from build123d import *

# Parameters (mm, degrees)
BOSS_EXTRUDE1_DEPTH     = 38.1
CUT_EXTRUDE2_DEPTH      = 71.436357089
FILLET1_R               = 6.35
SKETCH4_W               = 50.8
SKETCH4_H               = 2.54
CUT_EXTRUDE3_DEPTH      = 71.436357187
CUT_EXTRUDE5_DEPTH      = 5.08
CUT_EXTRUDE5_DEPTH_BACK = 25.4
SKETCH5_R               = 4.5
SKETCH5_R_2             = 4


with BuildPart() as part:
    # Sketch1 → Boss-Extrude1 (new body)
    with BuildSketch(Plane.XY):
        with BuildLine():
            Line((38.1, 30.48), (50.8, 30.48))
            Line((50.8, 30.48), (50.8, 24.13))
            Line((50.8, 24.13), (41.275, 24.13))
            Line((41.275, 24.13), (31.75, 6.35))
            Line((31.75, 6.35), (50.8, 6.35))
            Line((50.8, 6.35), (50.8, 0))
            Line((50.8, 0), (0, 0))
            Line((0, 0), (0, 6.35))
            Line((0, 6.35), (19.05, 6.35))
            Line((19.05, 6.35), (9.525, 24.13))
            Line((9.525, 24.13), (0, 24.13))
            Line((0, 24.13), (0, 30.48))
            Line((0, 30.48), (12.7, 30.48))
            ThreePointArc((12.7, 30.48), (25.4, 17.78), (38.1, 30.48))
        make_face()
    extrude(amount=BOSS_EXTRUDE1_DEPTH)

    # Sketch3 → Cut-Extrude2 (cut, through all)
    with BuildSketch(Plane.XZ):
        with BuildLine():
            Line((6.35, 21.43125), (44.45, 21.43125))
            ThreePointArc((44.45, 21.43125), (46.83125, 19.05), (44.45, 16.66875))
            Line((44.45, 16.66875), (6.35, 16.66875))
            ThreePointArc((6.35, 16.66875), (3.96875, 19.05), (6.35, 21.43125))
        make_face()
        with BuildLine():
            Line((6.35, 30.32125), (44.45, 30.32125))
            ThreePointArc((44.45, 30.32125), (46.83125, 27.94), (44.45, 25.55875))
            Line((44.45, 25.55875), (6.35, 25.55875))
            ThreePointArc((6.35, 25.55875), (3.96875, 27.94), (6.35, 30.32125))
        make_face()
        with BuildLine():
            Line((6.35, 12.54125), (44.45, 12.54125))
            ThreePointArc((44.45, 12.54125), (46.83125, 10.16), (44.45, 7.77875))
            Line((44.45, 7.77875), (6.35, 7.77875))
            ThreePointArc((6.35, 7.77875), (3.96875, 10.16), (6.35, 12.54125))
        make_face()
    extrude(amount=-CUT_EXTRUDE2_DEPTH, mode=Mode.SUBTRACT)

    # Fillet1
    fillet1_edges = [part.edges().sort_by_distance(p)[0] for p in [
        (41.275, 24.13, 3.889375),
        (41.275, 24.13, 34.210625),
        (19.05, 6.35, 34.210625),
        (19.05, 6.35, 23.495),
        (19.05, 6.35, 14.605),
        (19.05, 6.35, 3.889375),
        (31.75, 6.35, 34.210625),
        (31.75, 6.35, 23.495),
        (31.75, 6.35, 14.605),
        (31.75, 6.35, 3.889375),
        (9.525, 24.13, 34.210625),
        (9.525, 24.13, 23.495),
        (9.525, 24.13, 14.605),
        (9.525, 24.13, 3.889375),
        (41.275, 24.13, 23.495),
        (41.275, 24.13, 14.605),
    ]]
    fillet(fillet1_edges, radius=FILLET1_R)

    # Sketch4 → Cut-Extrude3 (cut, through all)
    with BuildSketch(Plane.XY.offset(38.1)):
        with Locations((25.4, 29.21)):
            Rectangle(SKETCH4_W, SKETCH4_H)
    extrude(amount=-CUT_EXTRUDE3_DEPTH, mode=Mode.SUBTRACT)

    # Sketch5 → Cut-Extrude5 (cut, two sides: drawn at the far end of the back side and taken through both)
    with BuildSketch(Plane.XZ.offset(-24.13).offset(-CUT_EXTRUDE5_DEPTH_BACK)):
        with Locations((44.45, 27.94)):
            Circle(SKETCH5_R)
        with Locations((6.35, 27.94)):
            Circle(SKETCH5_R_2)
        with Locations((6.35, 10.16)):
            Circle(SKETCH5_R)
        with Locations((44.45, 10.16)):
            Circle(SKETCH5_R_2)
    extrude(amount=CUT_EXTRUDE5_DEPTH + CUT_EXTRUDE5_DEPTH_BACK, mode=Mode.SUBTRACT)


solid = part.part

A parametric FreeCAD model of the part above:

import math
import FreeCAD as App
import Part
import Sketcher
Q = App.Units.Quantity


def edges_at(feature, points):
    """Names of the edges that pass closest to the given points."""
    edges = feature.Shape.Edges
    near = lambda p: min(range(len(edges)), key=lambda i: edges[i].distToShape(Part.Vertex(*p))[0])
    return sorted({f"Edge{near(p) + 1}" for p in points})

doc = App.newDocument("Part")
body = doc.addObject("PartDesign::Body", "Body")

sketch1 = doc.addObject("Sketcher::SketchObject", "Sketch")
body.addObject(sketch1)
sketch1.AttachmentSupport = (doc.XY_Plane, [""])
sketch1.MapMode = "FlatFace"
sketch1.addGeometry(Part.LineSegment(App.Vector(51, 30, 0), App.Vector(38, 30, 0)), False)
sketch1.addGeometry(Part.ArcOfCircle(Part.Circle(App.Vector(25, 30, 0), App.Vector(0, 0, 1), 13), math.radians(180), math.radians(360)), False)
sketch1.addGeometry(Part.LineSegment(App.Vector(13, 30, 0), App.Vector(0, 30, 0)), False)
sketch1.addGeometry(Part.LineSegment(App.Vector(0, 30, 0), App.Vector(0, 24, 0)), False)
sketch1.addGeometry(Part.LineSegment(App.Vector(0, 24, 0), App.Vector(10, 24, 0)), False)
sketch1.addGeometry(Part.LineSegment(App.Vector(10, 24, 0), App.Vector(19, 6, 0)), False)
sketch1.addGeometry(Part.LineSegment(App.Vector(19, 6, 0), App.Vector(0, 6, 0)), False)
sketch1.addGeometry(Part.LineSegment(App.Vector(0, 6, 0), App.Vector(0, 0, 0)), False)
sketch1.addGeometry(Part.LineSegment(App.Vector(0, 0, 0), App.Vector(51, 0, 0)), False)
sketch1.addGeometry(Part.LineSegment(App.Vector(51, 0, 0), App.Vector(51, 6, 0)), False)
sketch1.addGeometry(Part.LineSegment(App.Vector(51, 6, 0), App.Vector(32, 6, 0)), False)
sketch1.addGeometry(Part.LineSegment(App.Vector(32, 6, 0), App.Vector(41, 24, 0)), False)
sketch1.addGeometry(Part.LineSegment(App.Vector(41, 24, 0), App.Vector(51, 24, 0)), False)
sketch1.addGeometry(Part.LineSegment(App.Vector(51, 24, 0), App.Vector(51, 30, 0)), False)
sketch1.addConstraint(Sketcher.Constraint("Coincident", 0, 2, 1, 2))
sketch1.addConstraint(Sketcher.Constraint("Coincident", 1, 1, 2, 1))
sketch1.addConstraint(Sketcher.Constraint("Coincident", 2, 2, 3, 1))
sketch1.addConstraint(Sketcher.Constraint("Coincident", 3, 2, 4, 1))
sketch1.addConstraint(Sketcher.Constraint("Coincident", 4, 2, 5, 1))
sketch1.addConstraint(Sketcher.Constraint("Coincident", 5, 2, 6, 1))
sketch1.addConstraint(Sketcher.Constraint("Coincident", 6, 2, 7, 1))
sketch1.addConstraint(Sketcher.Constraint("Coincident", 7, 2, 8, 1))
sketch1.addConstraint(Sketcher.Constraint("Coincident", 8, 2, 9, 1))
sketch1.addConstraint(Sketcher.Constraint("Coincident", 9, 2, 10, 1))
sketch1.addConstraint(Sketcher.Constraint("Coincident", 10, 2, 11, 1))
sketch1.addConstraint(Sketcher.Constraint("Coincident", 11, 2, 12, 1))
sketch1.addConstraint(Sketcher.Constraint("Coincident", 12, 2, 13, 1))
sketch1.addConstraint(Sketcher.Constraint("Coincident", 13, 2, 0, 1))
sketch1.addConstraint(Sketcher.Constraint("Horizontal", 0))
sketch1.addConstraint(Sketcher.Constraint("Horizontal", 2))
sketch1.addConstraint(Sketcher.Constraint("Vertical", 3))
sketch1.addConstraint(Sketcher.Constraint("Horizontal", 4))
sketch1.addConstraint(Sketcher.Constraint("Horizontal", 6))
sketch1.addConstraint(Sketcher.Constraint("Vertical", 7))
sketch1.addConstraint(Sketcher.Constraint("Horizontal", 8))
sketch1.addConstraint(Sketcher.Constraint("Vertical", 9))
sketch1.addConstraint(Sketcher.Constraint("Horizontal", 10))
sketch1.addConstraint(Sketcher.Constraint("Horizontal", 12))
sketch1.addConstraint(Sketcher.Constraint("Vertical", 13))
sketch1.addConstraint(Sketcher.Constraint("Coincident", 7, 2, -1, 1))
sketch1.addConstraint(Sketcher.Constraint("PointOnObject", 2, 2, -2))
sketch1.addConstraint(Sketcher.Constraint("Horizontal", 1, 3, 0, 2))
sketch1.addConstraint(Sketcher.Constraint("Horizontal", 0, 2, 1, 1))
sketch1.addConstraint(Sketcher.Constraint("Horizontal", 6, 2, 9, 2))
sketch1.addConstraint(Sketcher.Constraint("Horizontal", 4, 2, 11, 2))
sketch1.addConstraint(Sketcher.Constraint("Vertical", 9, 2, 12, 2))
sketch1.addConstraint(Sketcher.Constraint("Equal", 0, 2))
sketch1.addConstraint(Sketcher.Constraint("Equal", 6, 10))
sketch1.addConstraint(Sketcher.Constraint("Equal", 4, 12))
sketch1.addConstraint(Sketcher.Constraint("Equal", 3, 7))
sketch1.addConstraint(Sketcher.Constraint("Radius", 1, Q("0.5 in")))
sketch1.addConstraint(Sketcher.Constraint("DistanceX", 8, 1, 8, 2, Q("2 in")))
sketch1.addConstraint(Sketcher.Constraint("DistanceX", 6, 2, 6, 1, Q("0.75 in")))
sketch1.addConstraint(Sketcher.Constraint("DistanceY", 3, 2, 3, 1, Q("0.25 in")))
sketch1.addConstraint(Sketcher.Constraint("DistanceY", -1, 1, 1, 3, Q("1.2 in")))
sketch1.addConstraint(Sketcher.Constraint("DistanceX", 4, 1, 4, 2, Q("0.375 in")))
pad1 = doc.addObject("PartDesign::Pad", "Pad")
body.addObject(pad1)
pad1.Profile = sketch1
pad1.Length = Q("1.5 in")

sketch2 = doc.addObject("Sketcher::SketchObject", "Sketch001")
body.addObject(sketch2)
sketch2.AttachmentSupport = (doc.XZ_Plane, [""])
sketch2.MapMode = "FlatFace"
sketch2.addGeometry(Part.LineSegment(App.Vector(44.5, 21.4, 0), App.Vector(6.3, 21.4, 0)), False)
sketch2.addGeometry(Part.ArcOfCircle(Part.Circle(App.Vector(6.3, 19.1, 0), App.Vector(0, 0, 1), 2.4), math.radians(90), math.radians(270)), False)
sketch2.addGeometry(Part.LineSegment(App.Vector(6.3, 16.7, 0), App.Vector(44.5, 16.7, 0)), False)
sketch2.addGeometry(Part.ArcOfCircle(Part.Circle(App.Vector(44.5, 19.1, 0), App.Vector(0, 0, 1), 2.4), math.radians(-90), math.radians(90)), False)
sketch2.addGeometry(Part.LineSegment(App.Vector(44.5, 30.3, 0), App.Vector(6.3, 30.3, 0)), False)
sketch2.addGeometry(Part.ArcOfCircle(Part.Circle(App.Vector(6.3, 27.9, 0), App.Vector(0, 0, 1), 2.4), math.radians(90), math.radians(270)), False)
sketch2.addGeometry(Part.LineSegment(App.Vector(6.3, 25.6, 0), App.Vector(44.5, 25.6, 0)), False)
sketch2.addGeometry(Part.ArcOfCircle(Part.Circle(App.Vector(44.5, 27.9, 0), App.Vector(0, 0, 1), 2.4), math.radians(-90), math.radians(90)), False)
sketch2.addGeometry(Part.LineSegment(App.Vector(44.5, 12.5, 0), App.Vector(6.3, 12.5, 0)), False)
sketch2.addGeometry(Part.ArcOfCircle(Part.Circle(App.Vector(6.3, 10.2, 0), App.Vector(0, 0, 1), 2.4), math.radians(90), math.radians(270)), False)
sketch2.addGeometry(Part.LineSegment(App.Vector(6.3, 7.8, 0), App.Vector(44.5, 7.8, 0)), False)
sketch2.addGeometry(Part.ArcOfCircle(Part.Circle(App.Vector(44.5, 10.2, 0), App.Vector(0, 0, 1), 2.4), math.radians(-90), math.radians(90)), False)
sketch2.addConstraint(Sketcher.Constraint("Tangent", 0, 2, 1, 1))
sketch2.addConstraint(Sketcher.Constraint("Tangent", 1, 2, 2, 1))
sketch2.addConstraint(Sketcher.Constraint("Tangent", 2, 2, 3, 1))
sketch2.addConstraint(Sketcher.Constraint("Tangent", 3, 2, 0, 1))
sketch2.addConstraint(Sketcher.Constraint("Tangent", 4, 2, 5, 1))
sketch2.addConstraint(Sketcher.Constraint("Tangent", 5, 2, 6, 1))
sketch2.addConstraint(Sketcher.Constraint("Tangent", 6, 2, 7, 1))
sketch2.addConstraint(Sketcher.Constraint("Tangent", 7, 2, 4, 1))
sketch2.addConstraint(Sketcher.Constraint("Tangent", 8, 2, 9, 1))
sketch2.addConstraint(Sketcher.Constraint("Tangent", 9, 2, 10, 1))
sketch2.addConstraint(Sketcher.Constraint("Tangent", 10, 2, 11, 1))
sketch2.addConstraint(Sketcher.Constraint("Tangent", 11, 2, 8, 1))
sketch2.addConstraint(Sketcher.Constraint("Horizontal", 0))
sketch2.addConstraint(Sketcher.Constraint("Horizontal", 2))
sketch2.addConstraint(Sketcher.Constraint("Horizontal", 4))
sketch2.addConstraint(Sketcher.Constraint("Horizontal", 6))
sketch2.addConstraint(Sketcher.Constraint("Horizontal", 8))
sketch2.addConstraint(Sketcher.Constraint("Horizontal", 10))
sketch2.addConstraint(Sketcher.Constraint("Equal", 3, 5))
sketch2.addConstraint(Sketcher.Constraint("Equal", 7, 9))
sketch2.addConstraint(Sketcher.Constraint("Vertical", 1, 3, 5, 3))
sketch2.addConstraint(Sketcher.Constraint("Vertical", 3, 3, 7, 3))
sketch2.addConstraint(Sketcher.Constraint("Vertical", 5, 3, 9, 3))
sketch2.addConstraint(Sketcher.Constraint("Vertical", 7, 3, 11, 3))
sketch2.addConstraint(Sketcher.Constraint("DistanceX", 0, 2, 0, 1, Q("1.5 in")))
sketch2.addConstraint(Sketcher.Constraint("Radius", 1, Q("0.09375 in")))
sketch2.addConstraint(Sketcher.Constraint("DistanceY", -1, 1, 5, 3, Q("1.1 in")))
sketch2.addConstraint(Sketcher.Constraint("DistanceY", -1, 1, 9, 3, Q("0.4 in")))
sketch2.addConstraint(Sketcher.Constraint("DistanceX", -1, 1, 1, 3, Q("0.25 in")))
sketch2.addConstraint(Sketcher.Constraint("DistanceY", -1, 1, 1, 3, Q("0.75 in")))
pocket1 = doc.addObject("PartDesign::Pocket", "Pocket")
body.addObject(pocket1)
pocket1.Profile = sketch2
pocket1.Type = "ThroughAll"
doc.recompute()

fillet = doc.addObject("PartDesign::Fillet", "Fillet")
body.addObject(fillet)
fillet.Base = (pocket1, edges_at(pocket1, [
    (41.275, 24.13, 3.889),
    (41.275, 24.13, 34.211),
    (19.05, 6.35, 34.211),
    (19.05, 6.35, 23.495),
    (19.05, 6.35, 14.605),
    (19.05, 6.35, 3.889),
    (31.75, 6.35, 34.211),
    (31.75, 6.35, 23.495),
    (31.75, 6.35, 14.605),
    (31.75, 6.35, 3.889),
    (9.525, 24.13, 34.211),
    (9.525, 24.13, 23.495),
    (9.525, 24.13, 14.605),
    (9.525, 24.13, 3.889),
    (41.275, 24.13, 23.495),
    (41.275, 24.13, 14.605),
]))
fillet.Radius = Q("0.25 in")

sketch3 = doc.addObject("Sketcher::SketchObject", "Sketch002")
body.addObject(sketch3)
sketch3.AttachmentSupport = (doc.XY_Plane, [""])
sketch3.MapMode = "FlatFace"
sketch3.AttachmentOffset = App.Placement(App.Vector(0, 0, 1.5 * 25.4), App.Rotation())
sketch3.addGeometry(Part.LineSegment(App.Vector(0, 30.5, 0), App.Vector(0, 27.9, 0)), False)
sketch3.addGeometry(Part.LineSegment(App.Vector(0, 27.9, 0), App.Vector(50.8, 27.9, 0)), False)
sketch3.addGeometry(Part.LineSegment(App.Vector(50.8, 27.9, 0), App.Vector(50.8, 30.5, 0)), False)
sketch3.addGeometry(Part.LineSegment(App.Vector(50.8, 30.5, 0), App.Vector(0, 30.5, 0)), False)
sketch3.addConstraint(Sketcher.Constraint("Coincident", 0, 2, 1, 1))
sketch3.addConstraint(Sketcher.Constraint("Coincident", 1, 2, 2, 1))
sketch3.addConstraint(Sketcher.Constraint("Coincident", 2, 2, 3, 1))
sketch3.addConstraint(Sketcher.Constraint("Coincident", 3, 2, 0, 1))
sketch3.addConstraint(Sketcher.Constraint("Vertical", 0))
sketch3.addConstraint(Sketcher.Constraint("Horizontal", 1))
sketch3.addConstraint(Sketcher.Constraint("Vertical", 2))
sketch3.addConstraint(Sketcher.Constraint("Horizontal", 3))
sketch3.addConstraint(Sketcher.Constraint("PointOnObject", 0, 2, -2))
sketch3.addConstraint(Sketcher.Constraint("DistanceX", 1, 1, 1, 2, Q("2 in")))
sketch3.addConstraint(Sketcher.Constraint("DistanceY", 0, 2, 0, 1, Q("0.1 in")))
sketch3.addConstraint(Sketcher.Constraint("DistanceY", -1, 1, 0, 2, Q("1.1 in")))
pocket2 = doc.addObject("PartDesign::Pocket", "Pocket001")
body.addObject(pocket2)
pocket2.Profile = sketch3
pocket2.Type = "ThroughAll"

sketch4 = doc.addObject("Sketcher::SketchObject", "Sketch003")
body.addObject(sketch4)
sketch4.AttachmentSupport = (doc.XZ_Plane, [""])
sketch4.MapMode = "FlatFace"
sketch4.AttachmentOffset = App.Placement(App.Vector(0, 0, -0.95 * 25.4), App.Rotation())
sketch4.addGeometry(Part.Circle(App.Vector(44.5, 27.9, 0), App.Vector(0, 0, 1), 4.5), False)
sketch4.addGeometry(Part.Circle(App.Vector(6.3, 27.9, 0), App.Vector(0, 0, 1), 4), False)
sketch4.addGeometry(Part.Circle(App.Vector(6.3, 10.2, 0), App.Vector(0, 0, 1), 4.5), False)
sketch4.addGeometry(Part.Circle(App.Vector(44.5, 10.2, 0), App.Vector(0, 0, 1), 4), False)
sketch4.addConstraint(Sketcher.Constraint("Equal", 0, 2))
sketch4.addConstraint(Sketcher.Constraint("Equal", 1, 3))
sketch4.addConstraint(Sketcher.Constraint("Horizontal", 0, 3, 1, 3))
sketch4.addConstraint(Sketcher.Constraint("Horizontal", 2, 3, 3, 3))
sketch4.addConstraint(Sketcher.Constraint("Vertical", 1, 3, 2, 3))
sketch4.addConstraint(Sketcher.Constraint("Vertical", 0, 3, 3, 3))
sketch4.addConstraint(Sketcher.Constraint("DistanceY", -1, 1, 0, 3, Q("1.1 in")))
sketch4.addConstraint(Sketcher.Constraint("DistanceY", -1, 1, 2, 3, Q("0.4 in")))
sketch4.addConstraint(Sketcher.Constraint("DistanceX", 1, 3, 0, 3, Q("1.5 in")))
sketch4.addConstraint(Sketcher.Constraint("Diameter", 0, Q("9 mm")))
sketch4.addConstraint(Sketcher.Constraint("Diameter", 1, Q("8 mm")))
sketch4.addConstraint(Sketcher.Constraint("DistanceX", -1, 1, 0, 3, Q("1.75 in")))
pocket3 = doc.addObject("PartDesign::Pocket", "Pocket002")
body.addObject(pocket3)
pocket3.Profile = sketch4
pocket3.Type = "TwoLengths"
pocket3.Length = Q("0.2 in")
pocket3.Length2 = Q("1 in")
pocket3.Reversed = True

doc.recompute()
